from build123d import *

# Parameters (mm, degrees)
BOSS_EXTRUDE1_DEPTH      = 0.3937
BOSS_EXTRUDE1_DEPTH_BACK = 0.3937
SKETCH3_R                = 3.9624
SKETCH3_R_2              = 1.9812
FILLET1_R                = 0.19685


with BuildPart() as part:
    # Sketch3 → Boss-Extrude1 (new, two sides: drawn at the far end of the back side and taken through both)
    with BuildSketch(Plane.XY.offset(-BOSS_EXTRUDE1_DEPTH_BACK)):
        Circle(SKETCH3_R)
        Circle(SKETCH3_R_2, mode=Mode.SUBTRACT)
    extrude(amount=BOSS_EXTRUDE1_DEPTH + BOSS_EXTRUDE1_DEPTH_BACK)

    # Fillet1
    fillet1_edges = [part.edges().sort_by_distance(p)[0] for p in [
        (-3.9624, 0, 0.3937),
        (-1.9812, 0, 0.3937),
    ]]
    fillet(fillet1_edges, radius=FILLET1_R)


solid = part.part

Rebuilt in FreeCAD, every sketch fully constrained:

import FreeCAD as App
import Part
import Sketcher
from FreeCAD import Vector
Q = App.Units.Quantity


def edges_at(feature, points):
    """Names of the edges that pass closest to the given points."""
    edges = feature.Shape.Edges
    near = lambda p: min(range(len(edges)), key=lambda i: edges[i].distToShape(Part.Vertex(*p))[0])
    return sorted({f"Edge{near(p) + 1}" for p in points})

doc = App.newDocument("Part")
body = doc.addObject("PartDesign::Body", "Body")

sketch1 = body.newObject("Sketcher::SketchObject", "Sketch")
sketch1.AttachmentSupport = (doc.getObject("XY_Plane"), [""])
sketch1.MapMode = "FlatFace"
sketch1.addGeometry(Part.Circle(Vector(0, 0, 0), Vector(0, 0, 1), 4), False)
sketch1.addGeometry(Part.Circle(Vector(0, 0, 0), Vector(0, 0, 1), 2), False)
sketch1.addConstraint(Sketcher.Constraint("Coincident", 0, 3, -1, 1))
sketch1.addConstraint(Sketcher.Constraint("Coincident", 1, 3, -1, 1))
sketch1.addConstraint(Sketcher.Constraint("Diameter", 0, Q("0.312 in")))
sketch1.addConstraint(Sketcher.Constraint("Diameter", 1, Q("0.156 in")))
pad1 = body.newObject("PartDesign::Pad", "Pad")
pad1.Profile = sketch1
pad1.Type = "TwoLengths"
pad1.Length = Q("0.0155 in")
pad1.Length2 = Q("0.0155 in")
doc.recompute()

fillet = body.newObject("PartDesign::Fillet", "Fillet")
fillet.Base = (pad1, edges_at(pad1, [(-3.962, 0, 0.394), (-1.981, 0, 0.394)]))
fillet.Radius = 0.19685

doc.recompute()
